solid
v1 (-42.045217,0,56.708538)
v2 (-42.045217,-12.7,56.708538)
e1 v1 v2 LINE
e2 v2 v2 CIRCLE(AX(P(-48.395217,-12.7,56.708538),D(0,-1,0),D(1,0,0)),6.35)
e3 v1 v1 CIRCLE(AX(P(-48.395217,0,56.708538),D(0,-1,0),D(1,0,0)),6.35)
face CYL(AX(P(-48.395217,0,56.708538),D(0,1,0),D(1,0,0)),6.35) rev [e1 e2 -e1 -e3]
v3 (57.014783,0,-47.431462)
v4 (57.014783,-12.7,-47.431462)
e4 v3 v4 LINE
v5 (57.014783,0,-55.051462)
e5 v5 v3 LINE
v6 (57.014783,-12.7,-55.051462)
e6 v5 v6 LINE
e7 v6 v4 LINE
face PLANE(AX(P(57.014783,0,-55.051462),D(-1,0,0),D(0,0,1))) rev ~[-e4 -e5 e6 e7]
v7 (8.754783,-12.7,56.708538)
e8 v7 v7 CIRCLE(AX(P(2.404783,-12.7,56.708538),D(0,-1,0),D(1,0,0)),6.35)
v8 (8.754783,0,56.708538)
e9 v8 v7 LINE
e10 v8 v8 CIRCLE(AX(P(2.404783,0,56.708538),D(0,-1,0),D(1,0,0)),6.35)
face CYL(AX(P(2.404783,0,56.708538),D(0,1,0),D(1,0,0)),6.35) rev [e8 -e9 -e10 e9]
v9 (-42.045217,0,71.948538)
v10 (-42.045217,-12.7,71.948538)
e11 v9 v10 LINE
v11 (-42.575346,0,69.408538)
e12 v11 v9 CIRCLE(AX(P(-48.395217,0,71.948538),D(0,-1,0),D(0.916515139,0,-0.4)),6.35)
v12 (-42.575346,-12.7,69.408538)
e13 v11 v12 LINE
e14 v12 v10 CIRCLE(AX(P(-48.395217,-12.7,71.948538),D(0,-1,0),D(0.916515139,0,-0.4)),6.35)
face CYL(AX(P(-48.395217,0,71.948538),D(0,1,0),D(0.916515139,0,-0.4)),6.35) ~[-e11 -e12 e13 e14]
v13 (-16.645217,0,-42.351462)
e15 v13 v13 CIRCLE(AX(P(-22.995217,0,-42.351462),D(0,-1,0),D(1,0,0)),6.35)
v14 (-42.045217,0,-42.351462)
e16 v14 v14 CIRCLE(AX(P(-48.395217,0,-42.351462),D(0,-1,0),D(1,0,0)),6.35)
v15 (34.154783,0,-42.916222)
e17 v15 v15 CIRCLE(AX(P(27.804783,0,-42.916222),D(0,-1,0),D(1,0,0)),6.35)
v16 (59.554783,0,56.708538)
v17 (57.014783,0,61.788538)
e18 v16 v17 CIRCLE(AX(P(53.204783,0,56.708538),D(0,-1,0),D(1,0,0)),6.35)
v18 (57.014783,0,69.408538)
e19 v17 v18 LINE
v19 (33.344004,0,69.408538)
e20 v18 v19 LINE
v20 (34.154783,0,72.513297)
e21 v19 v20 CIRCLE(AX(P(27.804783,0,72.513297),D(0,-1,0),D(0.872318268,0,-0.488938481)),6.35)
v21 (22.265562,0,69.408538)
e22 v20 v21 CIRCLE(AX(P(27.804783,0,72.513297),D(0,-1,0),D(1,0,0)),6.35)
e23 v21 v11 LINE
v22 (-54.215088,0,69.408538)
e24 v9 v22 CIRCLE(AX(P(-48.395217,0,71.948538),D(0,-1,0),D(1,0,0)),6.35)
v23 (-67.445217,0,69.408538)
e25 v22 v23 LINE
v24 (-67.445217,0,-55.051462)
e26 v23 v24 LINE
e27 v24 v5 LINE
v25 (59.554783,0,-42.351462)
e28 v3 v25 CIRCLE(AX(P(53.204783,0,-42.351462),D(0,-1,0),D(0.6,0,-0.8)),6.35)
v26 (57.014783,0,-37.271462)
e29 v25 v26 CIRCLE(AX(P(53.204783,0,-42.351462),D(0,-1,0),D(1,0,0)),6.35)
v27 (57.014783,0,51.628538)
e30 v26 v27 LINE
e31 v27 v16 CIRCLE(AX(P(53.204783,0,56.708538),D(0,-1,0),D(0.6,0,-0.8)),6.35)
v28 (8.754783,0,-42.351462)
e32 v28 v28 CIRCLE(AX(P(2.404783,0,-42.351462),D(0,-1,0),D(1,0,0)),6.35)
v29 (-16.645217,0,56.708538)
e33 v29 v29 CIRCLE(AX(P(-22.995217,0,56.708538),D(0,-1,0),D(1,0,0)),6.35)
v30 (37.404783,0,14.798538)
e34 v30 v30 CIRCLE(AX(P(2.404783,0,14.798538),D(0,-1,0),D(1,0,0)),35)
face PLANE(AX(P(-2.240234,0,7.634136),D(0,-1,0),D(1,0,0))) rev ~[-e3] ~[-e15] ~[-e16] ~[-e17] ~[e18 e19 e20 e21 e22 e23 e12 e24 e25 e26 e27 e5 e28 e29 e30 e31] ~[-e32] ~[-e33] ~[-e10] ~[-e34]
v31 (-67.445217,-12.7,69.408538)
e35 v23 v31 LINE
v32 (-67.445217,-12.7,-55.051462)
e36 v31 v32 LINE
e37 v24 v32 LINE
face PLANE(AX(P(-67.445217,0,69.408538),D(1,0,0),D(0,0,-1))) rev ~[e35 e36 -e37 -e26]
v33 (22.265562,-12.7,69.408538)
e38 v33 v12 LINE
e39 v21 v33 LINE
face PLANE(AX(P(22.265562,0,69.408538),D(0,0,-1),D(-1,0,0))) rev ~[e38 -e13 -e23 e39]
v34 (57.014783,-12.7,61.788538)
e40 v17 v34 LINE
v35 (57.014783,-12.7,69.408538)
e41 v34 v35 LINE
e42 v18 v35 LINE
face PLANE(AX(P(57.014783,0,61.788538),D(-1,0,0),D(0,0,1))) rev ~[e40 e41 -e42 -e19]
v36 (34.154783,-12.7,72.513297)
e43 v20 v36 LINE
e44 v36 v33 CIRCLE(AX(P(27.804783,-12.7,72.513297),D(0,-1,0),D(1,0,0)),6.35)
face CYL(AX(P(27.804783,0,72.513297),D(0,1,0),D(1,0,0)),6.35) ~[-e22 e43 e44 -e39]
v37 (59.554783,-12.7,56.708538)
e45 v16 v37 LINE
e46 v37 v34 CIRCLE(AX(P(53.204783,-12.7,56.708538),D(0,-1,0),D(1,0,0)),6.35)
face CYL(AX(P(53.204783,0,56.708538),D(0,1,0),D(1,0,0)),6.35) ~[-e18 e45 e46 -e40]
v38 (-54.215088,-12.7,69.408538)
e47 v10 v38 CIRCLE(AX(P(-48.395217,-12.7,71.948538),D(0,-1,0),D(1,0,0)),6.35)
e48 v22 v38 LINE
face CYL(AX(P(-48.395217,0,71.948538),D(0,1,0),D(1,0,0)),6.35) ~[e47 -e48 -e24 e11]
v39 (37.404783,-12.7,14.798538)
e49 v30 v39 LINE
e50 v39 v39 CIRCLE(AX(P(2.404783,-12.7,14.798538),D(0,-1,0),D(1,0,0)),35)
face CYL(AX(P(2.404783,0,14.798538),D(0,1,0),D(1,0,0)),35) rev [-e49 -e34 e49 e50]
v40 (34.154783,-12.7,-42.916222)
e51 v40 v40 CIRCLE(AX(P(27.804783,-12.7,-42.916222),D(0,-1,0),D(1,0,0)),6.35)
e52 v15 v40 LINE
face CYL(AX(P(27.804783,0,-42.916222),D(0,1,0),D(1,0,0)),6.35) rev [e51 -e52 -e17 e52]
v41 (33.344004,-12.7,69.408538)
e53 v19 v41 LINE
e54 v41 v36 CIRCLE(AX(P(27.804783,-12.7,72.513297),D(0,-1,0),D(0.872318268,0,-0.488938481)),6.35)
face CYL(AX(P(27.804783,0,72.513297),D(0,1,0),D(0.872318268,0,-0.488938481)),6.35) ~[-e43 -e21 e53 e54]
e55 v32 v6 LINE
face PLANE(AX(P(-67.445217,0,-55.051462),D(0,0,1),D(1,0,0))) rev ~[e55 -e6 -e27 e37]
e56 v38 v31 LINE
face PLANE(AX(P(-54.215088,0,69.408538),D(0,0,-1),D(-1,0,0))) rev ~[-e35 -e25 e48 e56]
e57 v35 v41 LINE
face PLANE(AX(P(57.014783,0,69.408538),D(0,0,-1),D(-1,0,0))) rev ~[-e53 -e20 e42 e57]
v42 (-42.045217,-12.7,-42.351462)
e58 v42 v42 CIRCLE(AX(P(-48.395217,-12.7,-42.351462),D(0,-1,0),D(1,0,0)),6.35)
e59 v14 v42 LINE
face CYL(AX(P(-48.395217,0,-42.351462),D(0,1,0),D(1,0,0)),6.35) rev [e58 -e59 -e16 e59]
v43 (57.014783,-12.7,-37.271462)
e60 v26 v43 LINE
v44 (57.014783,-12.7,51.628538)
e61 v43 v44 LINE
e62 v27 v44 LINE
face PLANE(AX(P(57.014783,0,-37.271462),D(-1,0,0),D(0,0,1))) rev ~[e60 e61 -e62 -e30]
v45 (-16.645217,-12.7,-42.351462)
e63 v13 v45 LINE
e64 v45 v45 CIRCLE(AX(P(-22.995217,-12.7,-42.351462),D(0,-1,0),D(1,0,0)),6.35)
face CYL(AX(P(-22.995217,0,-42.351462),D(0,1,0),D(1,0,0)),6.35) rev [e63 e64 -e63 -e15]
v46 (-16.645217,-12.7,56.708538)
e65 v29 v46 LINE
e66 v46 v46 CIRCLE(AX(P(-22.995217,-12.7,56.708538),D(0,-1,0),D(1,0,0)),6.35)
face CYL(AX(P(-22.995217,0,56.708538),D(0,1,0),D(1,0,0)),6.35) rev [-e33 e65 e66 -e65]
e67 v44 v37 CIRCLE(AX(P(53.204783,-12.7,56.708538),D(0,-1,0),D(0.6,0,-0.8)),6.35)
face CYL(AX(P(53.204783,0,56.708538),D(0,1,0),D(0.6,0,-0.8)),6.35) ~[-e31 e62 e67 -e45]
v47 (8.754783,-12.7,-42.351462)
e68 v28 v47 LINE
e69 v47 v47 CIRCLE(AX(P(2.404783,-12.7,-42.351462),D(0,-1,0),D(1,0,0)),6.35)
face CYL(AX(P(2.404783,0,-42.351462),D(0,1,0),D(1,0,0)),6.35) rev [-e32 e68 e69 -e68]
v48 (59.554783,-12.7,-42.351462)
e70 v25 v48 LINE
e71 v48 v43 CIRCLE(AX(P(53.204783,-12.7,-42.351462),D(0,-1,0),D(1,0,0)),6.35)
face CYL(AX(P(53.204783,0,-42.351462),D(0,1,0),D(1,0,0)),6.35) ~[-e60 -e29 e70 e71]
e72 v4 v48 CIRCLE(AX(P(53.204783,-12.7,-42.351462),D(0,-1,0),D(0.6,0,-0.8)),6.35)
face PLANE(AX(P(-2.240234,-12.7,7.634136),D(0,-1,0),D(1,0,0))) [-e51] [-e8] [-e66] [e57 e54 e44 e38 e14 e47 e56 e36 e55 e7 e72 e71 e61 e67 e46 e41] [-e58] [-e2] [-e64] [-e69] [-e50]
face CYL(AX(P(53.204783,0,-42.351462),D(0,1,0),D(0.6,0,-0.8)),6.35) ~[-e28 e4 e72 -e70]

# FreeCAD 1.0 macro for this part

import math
import FreeCAD as App
import Part
import Sketcher
Q = App.Units.Quantity

doc = App.newDocument("Part")
body = doc.addObject("PartDesign::Body", "Body")

# Sketch on XZ plane
sketch1 = body.newObject("Sketcher::SketchObject", "Sketch")
sketch1.AttachmentSupport = (doc.getObject("XZ_Plane"), [""])
sketch1.MapMode = "FlatFace"
sketch1.addGeometry([
    Part.LineSegment(App.Vector(-54.2, 69.4, 0), App.Vector(-67.4, 69.4, 0)),  # 0
    Part.LineSegment(App.Vector(-67.4, 69.4, 0), App.Vector(-67.4, -55.1, 0)),  # 1
    Part.LineSegment(App.Vector(-67.4, -55.1, 0), App.Vector(57, -55.1, 0)),  # 2
    Part.LineSegment(App.Vector(57, -55.1, 0), App.Vector(57, -47.4, 0)),  # 3
    Part.ArcOfCircle(Part.Circle(App.Vector(53.2, -42.4, 0), App.Vector(0, 0, 1), 6.3), math.radians(-53), math.radians(0)),  # 4
    Part.ArcOfCircle(Part.Circle(App.Vector(53.2, -42.4, 0), App.Vector(0, 0, 1), 6.3), math.radians(0), math.radians(53)),  # 5
    Part.LineSegment(App.Vector(57, -37.3, 0), App.Vector(57, 51.6, 0)),  # 6
    Part.ArcOfCircle(Part.Circle(App.Vector(53.2, 56.7, 0), App.Vector(0, 0, 1), 6.3), math.radians(-53), math.radians(0)),  # 7
    Part.ArcOfCircle(Part.Circle(App.Vector(53.2, 56.7, 0), App.Vector(0, 0, 1), 6.3), math.radians(0), math.radians(53)),  # 8
    Part.LineSegment(App.Vector(57, 61.8, 0), App.Vector(57, 69.4, 0)),  # 9
    Part.LineSegment(App.Vector(57, 69.4, 0), App.Vector(33.3, 69.4, 0)),  # 10
    Part.ArcOfCircle(Part.Circle(App.Vector(27.8, 72.5, 0), App.Vector(0, 0, 1), 6.3), math.radians(-29), math.radians(0)),  # 11
    Part.ArcOfCircle(Part.Circle(App.Vector(27.8, 72.5, 0), App.Vector(0, 0, 1), 6.3), math.radians(0), math.radians(209)),  # 12
    Part.LineSegment(App.Vector(22.3, 69.4, 0), App.Vector(-42.6, 69.4, 0)),  # 13
    Part.ArcOfCircle(Part.Circle(App.Vector(-48.4, 71.9, 0), App.Vector(0, 0, 1), 6.4), math.radians(-24), math.radians(0)),  # 14
    Part.ArcOfCircle(Part.Circle(App.Vector(-48.4, 71.9, 0), App.Vector(0, 0, 1), 6.3), math.radians(0), math.radians(204)),  # 15
    Part.Circle(App.Vector(-48.4, -42.4, 0), App.Vector(0, 0, 1), 6.3),  # 16
    Part.Circle(App.Vector(-23, -42.4, 0), App.Vector(0, 0, 1), 6.3),  # 17
    Part.Circle(App.Vector(2.4, -42.4, 0), App.Vector(0, 0, 1), 6.3),  # 18
    Part.Circle(App.Vector(27.8, -42.9, 0), App.Vector(0, 0, 1), 6.3),  # 19
    Part.Circle(App.Vector(-48.4, 56.7, 0), App.Vector(0, 0, 1), 6.3),  # 20
    Part.Circle(App.Vector(-23, 56.7, 0), App.Vector(0, 0, 1), 6.3),  # 21
    Part.Circle(App.Vector(2.4, 14.8, 0), App.Vector(0, 0, 1), 35),  # 22
    Part.Circle(App.Vector(2.4, 56.7, 0), App.Vector(0, 0, 1), 6.3),  # 23
], False)
sketch1.addConstraint([
    Sketcher.Constraint("Coincident", 0, 2, 1, 1),
    Sketcher.Constraint("Coincident", 1, 2, 2, 1),
    Sketcher.Constraint("Coincident", 2, 2, 3, 1),
    Sketcher.Constraint("Coincident", 3, 2, 4, 1),
    Sketcher.Constraint("Tangent", 4, 2, 5, 1),
    Sketcher.Constraint("Coincident", 5, 2, 6, 1),
    Sketcher.Constraint("Coincident", 6, 2, 7, 1),
    Sketcher.Constraint("Tangent", 7, 2, 8, 1),
    Sketcher.Constraint("Coincident", 8, 2, 9, 1),
    Sketcher.Constraint("Coincident", 9, 2, 10, 1),
    Sketcher.Constraint("Coincident", 10, 2, 11, 1),
    Sketcher.Constraint("Tangent", 11, 2, 12, 1),
    Sketcher.Constraint("Coincident", 12, 2, 13, 1),
    Sketcher.Constraint("Coincident", 13, 2, 14, 1),
    Sketcher.Constraint("Tangent", 14, 2, 15, 1),
    Sketcher.Constraint("Coincident", 15, 2, 0, 1),
    Sketcher.Constraint("Horizontal", 0),
    Sketcher.Constraint("Vertical", 1),
    Sketcher.Constraint("Horizontal", 2),
    Sketcher.Constraint("Vertical", 3),
    Sketcher.Constraint("Vertical", 6),
    Sketcher.Constraint("Vertical", 9),
    Sketcher.Constraint("Horizontal", 10),
    Sketcher.Constraint("Horizontal", 13),
    Sketcher.Constraint("Equal", 4, 5),
    Sketcher.Constraint("Equal", 5, 7),
    Sketcher.Constraint("Equal", 7, 8),
    Sketcher.Constraint("Equal", 8, 11),
    Sketcher.Constraint("Equal", 11, 12),
    Sketcher.Constraint("Equal", 12, 14),
    Sketcher.Constraint("Equal", 14, 15),
    Sketcher.Constraint("Equal", 15, 16),
    Sketcher.Constraint("Equal", 16, 17),
    Sketcher.Constraint("Equal", 17, 18),
    Sketcher.Constraint("Equal", 18, 19),
    Sketcher.Constraint("Equal", 19, 20),
    Sketcher.Constraint("Equal", 20, 21),
    Sketcher.Constraint("Equal", 21, 23),
    Sketcher.Constraint("Horizontal", 5, 3, 16, 3),
    Sketcher.Constraint("Horizontal", 16, 3, 17, 3),
    Sketcher.Constraint("Horizontal", 17, 3, 18, 3),
    Sketcher.Constraint("Horizontal", 8, 3, 20, 3),
    Sketcher.Constraint("Horizontal", 20, 3, 21, 3),
    Sketcher.Constraint("Horizontal", 21, 3, 23, 3),
    Sketcher.Constraint("Horizontal", 18, 3, 4, 2),
    Sketcher.Constraint("Horizontal", 23, 3, 7, 2),
    Sketcher.Constraint("Horizontal", 0, 2, 9, 2),
    Sketcher.Constraint("Horizontal", 12, 3, 11, 2),
    Sketcher.Constraint("Horizontal", 10, 2, 12, 2),
    Sketcher.Constraint("Horizontal", 15, 3, 14, 2),
    Sketcher.Constraint("Vertical", 5, 3, 7, 3),
    Sketcher.Constraint("Vertical", 15, 3, 16, 3),
    Sketcher.Constraint("Vertical", 12, 3, 19, 3),
    Sketcher.Constraint("Vertical", 16, 3, 20, 3),
    Sketcher.Constraint("Vertical", 17, 3, 21, 3),
    Sketcher.Constraint("Vertical", 18, 3, 22, 3),
    Sketcher.Constraint("Vertical", 22, 3, 23, 3),
    Sketcher.Constraint("Vertical", 3, 2, 5, 2),
    Sketcher.Constraint("Vertical", 6, 2, 8, 2),
    Sketcher.Constraint("Equal", 2, 1),
    Sketcher.Constraint("Equal", 3, 9),
    Sketcher.Constraint("Diameter", 16, Q("0.5 in")),
    Sketcher.Constraint("DistanceX", 2, 1, 2, 2, Q("4.9 in")),
    Sketcher.Constraint("DistanceY", 3, 1, 3, 2, Q("0.3 in")),
    Sketcher.Constraint("DistanceY", 6, 1, 6, 2, Q("3.5 in")),
    Sketcher.Constraint("DistanceX", 11, 3, 7, 3, Q("1 in")),
    Sketcher.Constraint("DistanceX", 14, 3, 11, 3, Q("3 in")),
    Sketcher.Constraint("DistanceX", 16, 3, 17, 3, Q("1 in")),
    Sketcher.Constraint("DistanceX", 17, 3, 18, 3, Q("1 in")),
    Sketcher.Constraint("DistanceY", 7, 3, 14, 3, Q("0.6 in")),
    Sketcher.Constraint("Diameter", 22, 70.0),
    Sketcher.Constraint("DistanceY", 22, 3, 21, 3, Q("1.65 in")),
    Sketcher.Constraint("DistanceX", 10, 2, 10, 1, 23.670779),
    Sketcher.Constraint("DistanceY", 19, 3, -1, 1, 42.916222),
    Sketcher.Constraint("DistanceX", -1, 1, 12, 2, 22.265562),
    Sketcher.Constraint("DistanceY", 19, 3, 5, 3, 0.564759),
])
pad1 = body.newObject("PartDesign::Pad", "Pad")
pad1.Profile = sketch1
pad1.Length = Q("0.5 in")

doc.recompute()
